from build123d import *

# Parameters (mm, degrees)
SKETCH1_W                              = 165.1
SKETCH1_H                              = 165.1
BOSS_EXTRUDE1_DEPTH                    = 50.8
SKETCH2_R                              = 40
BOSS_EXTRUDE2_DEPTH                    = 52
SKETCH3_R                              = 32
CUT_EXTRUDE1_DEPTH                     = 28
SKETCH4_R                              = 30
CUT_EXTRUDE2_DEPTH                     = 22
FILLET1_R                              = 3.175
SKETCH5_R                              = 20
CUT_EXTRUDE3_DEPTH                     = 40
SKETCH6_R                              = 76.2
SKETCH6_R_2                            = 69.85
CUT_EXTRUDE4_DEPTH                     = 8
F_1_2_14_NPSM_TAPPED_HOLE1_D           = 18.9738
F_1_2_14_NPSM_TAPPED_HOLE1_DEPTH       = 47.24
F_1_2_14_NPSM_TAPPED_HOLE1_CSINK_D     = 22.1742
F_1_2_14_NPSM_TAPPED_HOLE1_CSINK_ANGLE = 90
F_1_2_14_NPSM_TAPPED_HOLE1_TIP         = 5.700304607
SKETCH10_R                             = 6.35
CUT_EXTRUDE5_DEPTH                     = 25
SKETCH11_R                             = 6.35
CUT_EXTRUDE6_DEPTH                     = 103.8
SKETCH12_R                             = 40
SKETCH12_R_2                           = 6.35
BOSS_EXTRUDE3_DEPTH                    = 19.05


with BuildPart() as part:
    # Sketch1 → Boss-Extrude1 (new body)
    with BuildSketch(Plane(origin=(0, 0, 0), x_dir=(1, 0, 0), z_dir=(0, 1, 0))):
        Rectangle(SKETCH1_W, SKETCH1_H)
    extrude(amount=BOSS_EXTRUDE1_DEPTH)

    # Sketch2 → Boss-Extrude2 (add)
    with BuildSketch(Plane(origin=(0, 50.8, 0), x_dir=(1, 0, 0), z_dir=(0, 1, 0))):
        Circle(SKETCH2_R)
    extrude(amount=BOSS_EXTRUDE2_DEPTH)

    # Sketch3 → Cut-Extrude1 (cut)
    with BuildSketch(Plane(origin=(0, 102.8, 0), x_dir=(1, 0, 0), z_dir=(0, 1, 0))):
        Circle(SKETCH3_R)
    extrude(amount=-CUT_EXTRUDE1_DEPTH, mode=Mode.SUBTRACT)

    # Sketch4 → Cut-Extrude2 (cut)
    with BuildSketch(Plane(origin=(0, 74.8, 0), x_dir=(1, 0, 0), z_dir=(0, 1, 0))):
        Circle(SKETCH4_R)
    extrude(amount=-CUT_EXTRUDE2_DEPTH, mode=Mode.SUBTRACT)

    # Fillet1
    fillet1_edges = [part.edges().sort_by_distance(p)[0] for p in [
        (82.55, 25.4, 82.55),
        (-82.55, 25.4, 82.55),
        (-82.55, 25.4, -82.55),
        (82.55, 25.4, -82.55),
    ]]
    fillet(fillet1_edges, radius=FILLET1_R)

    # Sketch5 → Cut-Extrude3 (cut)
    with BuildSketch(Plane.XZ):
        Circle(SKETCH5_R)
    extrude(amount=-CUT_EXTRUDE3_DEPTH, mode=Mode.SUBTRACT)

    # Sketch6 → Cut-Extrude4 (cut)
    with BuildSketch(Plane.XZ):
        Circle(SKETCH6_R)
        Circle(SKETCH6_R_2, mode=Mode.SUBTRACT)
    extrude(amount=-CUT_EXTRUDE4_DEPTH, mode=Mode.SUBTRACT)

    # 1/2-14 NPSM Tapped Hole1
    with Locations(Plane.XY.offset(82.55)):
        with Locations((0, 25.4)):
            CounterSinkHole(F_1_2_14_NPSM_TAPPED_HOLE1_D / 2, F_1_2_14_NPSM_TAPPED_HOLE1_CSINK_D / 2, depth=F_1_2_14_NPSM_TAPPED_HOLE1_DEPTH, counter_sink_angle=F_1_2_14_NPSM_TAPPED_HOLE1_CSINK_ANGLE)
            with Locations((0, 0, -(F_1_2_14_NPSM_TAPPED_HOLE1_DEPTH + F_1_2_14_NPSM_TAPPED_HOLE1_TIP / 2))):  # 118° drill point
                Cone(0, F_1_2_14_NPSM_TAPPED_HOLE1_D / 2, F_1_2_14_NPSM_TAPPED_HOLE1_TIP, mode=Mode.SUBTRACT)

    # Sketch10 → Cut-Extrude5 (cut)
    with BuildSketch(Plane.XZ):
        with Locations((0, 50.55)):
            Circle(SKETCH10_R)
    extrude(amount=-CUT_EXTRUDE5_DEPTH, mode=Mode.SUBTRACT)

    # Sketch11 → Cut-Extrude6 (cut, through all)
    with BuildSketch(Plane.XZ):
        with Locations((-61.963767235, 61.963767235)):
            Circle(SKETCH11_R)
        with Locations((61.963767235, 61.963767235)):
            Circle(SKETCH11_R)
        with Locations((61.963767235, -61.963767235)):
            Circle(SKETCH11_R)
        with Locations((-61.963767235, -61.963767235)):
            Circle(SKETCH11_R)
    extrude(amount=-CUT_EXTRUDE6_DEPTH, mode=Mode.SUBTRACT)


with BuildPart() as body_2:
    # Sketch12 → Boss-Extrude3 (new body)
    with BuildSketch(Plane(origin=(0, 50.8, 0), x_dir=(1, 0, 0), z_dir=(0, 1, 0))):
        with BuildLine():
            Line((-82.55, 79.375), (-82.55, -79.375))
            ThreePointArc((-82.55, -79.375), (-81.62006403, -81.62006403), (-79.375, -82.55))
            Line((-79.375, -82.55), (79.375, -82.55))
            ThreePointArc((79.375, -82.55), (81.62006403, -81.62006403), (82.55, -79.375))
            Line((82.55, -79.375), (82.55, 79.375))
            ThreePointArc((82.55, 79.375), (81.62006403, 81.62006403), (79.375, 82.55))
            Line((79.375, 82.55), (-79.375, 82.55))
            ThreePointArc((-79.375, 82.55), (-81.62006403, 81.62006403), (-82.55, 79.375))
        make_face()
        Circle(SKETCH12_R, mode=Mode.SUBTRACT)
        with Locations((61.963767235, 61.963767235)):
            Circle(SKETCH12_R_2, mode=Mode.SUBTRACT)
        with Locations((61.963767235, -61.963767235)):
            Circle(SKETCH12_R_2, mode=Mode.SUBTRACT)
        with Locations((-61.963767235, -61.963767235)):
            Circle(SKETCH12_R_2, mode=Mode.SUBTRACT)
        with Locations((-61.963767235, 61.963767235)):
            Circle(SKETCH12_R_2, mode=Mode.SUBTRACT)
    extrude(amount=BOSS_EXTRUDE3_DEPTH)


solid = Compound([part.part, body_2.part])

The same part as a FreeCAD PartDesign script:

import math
import FreeCAD as App
import Part
import Sketcher
Q = App.Units.Quantity


def edges_at(feature, points):
    """Names of the edges that pass closest to the given points."""
    edges = feature.Shape.Edges
    near = lambda p: min(range(len(edges)), key=lambda i: edges[i].distToShape(Part.Vertex(*p))[0])
    return sorted({f"Edge{near(p) + 1}" for p in points})

doc = App.newDocument("Part")
body = doc.addObject("PartDesign::Body", "Body")

sketch1 = body.newObject("Sketcher::SketchObject", "Sketch")
sketch1.AttachmentSupport = (doc.getObject("XZ_Plane"), [""])
sketch1.MapMode = "FlatFace"
sketch1.addGeometry(Part.LineSegment(App.Vector(-82.55, -82.55, 0), App.Vector(-82.55, 82.55, 0)), False)
sketch1.addGeometry(Part.LineSegment(App.Vector(-82.55, 82.55, 0), App.Vector(82.55, 82.55, 0)), False)
sketch1.addGeometry(Part.LineSegment(App.Vector(82.55, 82.55, 0), App.Vector(82.55, -82.55, 0)), False)
sketch1.addGeometry(Part.LineSegment(App.Vector(82.55, -82.55, 0), App.Vector(-82.55, -82.55, 0)), False)
sketch1.addConstraint(Sketcher.Constraint("Coincident", 0, 2, 1, 1))
sketch1.addConstraint(Sketcher.Constraint("Coincident", 1, 2, 2, 1))
sketch1.addConstraint(Sketcher.Constraint("Coincident", 2, 2, 3, 1))
sketch1.addConstraint(Sketcher.Constraint("Coincident", 3, 2, 0, 1))
sketch1.addConstraint(Sketcher.Constraint("Vertical", 0))
sketch1.addConstraint(Sketcher.Constraint("Horizontal", 1))
sketch1.addConstraint(Sketcher.Constraint("Vertical", 2))
sketch1.addConstraint(Sketcher.Constraint("Horizontal", 3))
sketch1.addConstraint(Sketcher.Constraint("Symmetric", 0, 2, 2, 2, -1, 1))
sketch1.addConstraint(Sketcher.Constraint("Equal", 3, 0))
sketch1.addConstraint(Sketcher.Constraint("DistanceX", 1, 1, 1, 2, Q("165.1 mm")))
pad1 = body.newObject("PartDesign::Pad", "Pad")
pad1.Profile = sketch1
pad1.Length = 50.8
pad1.Reversed = True

sketch2 = body.newObject("Sketcher::SketchObject", "Sketch001")
sketch2.AttachmentSupport = (doc.getObject("XZ_Plane"), [""])
sketch2.MapMode = "FlatFace"
sketch2.AttachmentOffset = App.Placement(App.Vector(0, 0, -50.8), App.Rotation())
sketch2.addGeometry(Part.Circle(App.Vector(0, 0, 0), App.Vector(0, 0, 1), 40), False)
sketch2.addConstraint(Sketcher.Constraint("Coincident", 0, 3, -1, 1))
sketch2.addConstraint(Sketcher.Constraint("Diameter", 0, Q("80 mm")))
pad2 = body.newObject("PartDesign::Pad", "Pad001")
pad2.Profile = sketch2
pad2.Length = 52
pad2.Reversed = True

sketch3 = body.newObject("Sketcher::SketchObject", "Sketch002")
sketch3.AttachmentSupport = (doc.getObject("XZ_Plane"), [""])
sketch3.MapMode = "FlatFace"
sketch3.AttachmentOffset = App.Placement(App.Vector(0, 0, -102.8), App.Rotation())
sketch3.addGeometry(Part.Circle(App.Vector(0, 0, 0), App.Vector(0, 0, 1), 32), False)
sketch3.addConstraint(Sketcher.Constraint("Coincident", 0, 3, -1, 1))
sketch3.addConstraint(Sketcher.Constraint("Diameter", 0, Q("64 mm")))
pocket1 = body.newObject("PartDesign::Pocket", "Pocket")
pocket1.Profile = sketch3
pocket1.Length = 28
pocket1.Reversed = True

sketch4 = body.newObject("Sketcher::SketchObject", "Sketch003")
sketch4.AttachmentSupport = (doc.getObject("XZ_Plane"), [""])
sketch4.MapMode = "FlatFace"
sketch4.AttachmentOffset = App.Placement(App.Vector(0, 0, -74.8), App.Rotation())
sketch4.addGeometry(Part.Circle(App.Vector(0, 0, 0), App.Vector(0, 0, 1), 30), False)
sketch4.addConstraint(Sketcher.Constraint("Coincident", 0, 3, -1, 1))
sketch4.addConstraint(Sketcher.Constraint("Diameter", 0, Q("60 mm")))
pocket2 = body.newObject("PartDesign::Pocket", "Pocket001")
pocket2.Profile = sketch4
pocket2.Length = 22
pocket2.Reversed = True
doc.recompute()

fillet = body.newObject("PartDesign::Fillet", "Fillet")
fillet.Base = (pocket2, edges_at(pocket2, [
    (82.55, 25.4, 82.55),
    (-82.55, 25.4, 82.55),
    (-82.55, 25.4, -82.55),
    (82.55, 25.4, -82.55),
]))
fillet.Radius = 3.175

sketch5 = body.newObject("Sketcher::SketchObject", "Sketch004")
sketch5.AttachmentSupport = (doc.getObject("XZ_Plane"), [""])
sketch5.MapMode = "FlatFace"
sketch5.addGeometry(Part.Circle(App.Vector(0, 0, 0), App.Vector(0, 0, 1), 20), False)
sketch5.addConstraint(Sketcher.Constraint("Coincident", 0, 3, -1, 1))
sketch5.addConstraint(Sketcher.Constraint("Diameter", 0, Q("40 mm")))
pocket3 = body.newObject("PartDesign::Pocket", "Pocket002")
pocket3.Profile = sketch5
pocket3.Length = 40

sketch6 = body.newObject("Sketcher::SketchObject", "Sketch005")
sketch6.AttachmentSupport = (doc.getObject("XZ_Plane"), [""])
sketch6.MapMode = "FlatFace"
sketch6.addGeometry(Part.Circle(App.Vector(0, 0, 0), App.Vector(0, 0, 1), 76.2), False)
sketch6.addGeometry(Part.Circle(App.Vector(0, 0, 0), App.Vector(0, 0, 1), 69.85), False)
sketch6.addConstraint(Sketcher.Constraint("Coincident", 0, 3, -1, 1))
sketch6.addConstraint(Sketcher.Constraint("Coincident", 1, 3, -1, 1))
sketch6.addConstraint(Sketcher.Constraint("Diameter", 0, Q("152.4 mm")))
sketch6.addConstraint(Sketcher.Constraint("Diameter", 1, Q("139.7 mm")))
pocket4 = body.newObject("PartDesign::Pocket", "Pocket003")
pocket4.Profile = sketch6
pocket4.Length = 8

sketch7 = body.newObject("Sketcher::SketchObject", "Sketch006")
sketch7.AttachmentSupport = (doc.getObject("XY_Plane"), [""])
sketch7.MapMode = "FlatFace"
sketch7.AttachmentOffset = App.Placement(App.Vector(0, 0, 82.55), App.Rotation())
sketch7.addGeometry(Part.Circle(App.Vector(0, 25.4, 0), App.Vector(0, 0, 1), 9.4869), False)
sketch7.addConstraint(Sketcher.Constraint("PointOnObject", 0, 3, -2))
sketch7.addConstraint(Sketcher.Constraint("Diameter", 0, Q("18.9738 mm")))
sketch7.addConstraint(Sketcher.Constraint("DistanceY", -1, 1, 0, 3, Q("25.4 mm")))
doc.recompute()
hole = body.newObject("PartDesign::Hole", "Hole")
hole.Profile = sketch7
hole.ThreadType = "None"
hole.Diameter = 18.9738
hole.DepthType = "Dimension"
hole.Depth = 47.24
hole.DrillPoint = "Angled"
hole.DrillPointAngle = 118
hole.HoleCutType = "Countersink"
hole.HoleCutDiameter = 22.1742
hole.HoleCutCountersinkAngle = 90

sketch8 = body.newObject("Sketcher::SketchObject", "Sketch007")
sketch8.AttachmentSupport = (doc.getObject("XZ_Plane"), [""])
sketch8.MapMode = "FlatFace"
sketch8.addGeometry(Part.Circle(App.Vector(0, 50.55, 0), App.Vector(0, 0, 1), 6.35), False)
sketch8.addConstraint(Sketcher.Constraint("PointOnObject", 0, 3, -2))
sketch8.addConstraint(Sketcher.Constraint("Diameter", 0, Q("12.7 mm")))
sketch8.addConstraint(Sketcher.Constraint("DistanceY", -1, 1, 0, 3, Q("50.55 mm")))
pocket5 = body.newObject("PartDesign::Pocket", "Pocket004")
pocket5.Profile = sketch8
pocket5.Length = 25

sketch9 = body.newObject("Sketcher::SketchObject", "Sketch008")
sketch9.AttachmentSupport = (doc.getObject("XZ_Plane"), [""])
sketch9.MapMode = "FlatFace"
sketch9.addGeometry(Part.Circle(App.Vector(-61.963767, 61.963767, 0), App.Vector(0, 0, 1), 6.35), False)
sketch9.addGeometry(Part.Circle(App.Vector(61.963767, 61.963767, 0), App.Vector(0, 0, 1), 6.35), False)
sketch9.addGeometry(Part.Circle(App.Vector(61.963767, -61.963767, 0), App.Vector(0, 0, 1), 6.35), False)
sketch9.addGeometry(Part.Circle(App.Vector(-61.963767, -61.963767, 0), App.Vector(0, 0, 1), 6.35), False)
sketch9.addConstraint(Sketcher.Constraint("Equal", 0, 1))
sketch9.addConstraint(Sketcher.Constraint("Equal", 1, 2))
sketch9.addConstraint(Sketcher.Constraint("Equal", 2, 3))
sketch9.addConstraint(Sketcher.Constraint("Symmetric", 0, 3, 2, 3, -1, 1))
sketch9.addConstraint(Sketcher.Constraint("Symmetric", 1, 3, 3, 3, -1, 1))
sketch9.addConstraint(Sketcher.Constraint("Symmetric", 0, 3, 1, 3, -2))
sketch9.addConstraint(Sketcher.Constraint("Diameter", 0, Q("12.7 mm")))
sketch9.addConstraint(Sketcher.Constraint("DistanceX", 0, 3, -1, 1, Q("61.963767 mm")))
sketch9.addConstraint(Sketcher.Constraint("DistanceY", -1, 1, 0, 3, Q("61.963767 mm")))
pocket6 = body.newObject("PartDesign::Pocket", "Pocket005")
pocket6.Profile = sketch9
pocket6.Type = "ThroughAll"
body2 = doc.addObject("PartDesign::Body", "Body001")

sketch10 = body2.newObject("Sketcher::SketchObject", "Sketch009")
sketch10.AttachmentSupport = (doc.getObject("XZ_Plane001"), [""])
sketch10.MapMode = "FlatFace"
sketch10.AttachmentOffset = App.Placement(App.Vector(0, 0, -50.8), App.Rotation())
sketch10.addGeometry(Part.LineSegment(App.Vector(-82.55, -79.375, 0), App.Vector(-82.55, 79.375, 0)), False)
sketch10.addGeometry(Part.ArcOfCircle(Part.Circle(App.Vector(-79.375, 79.375, 0), App.Vector(0, 0, 1), 3.175), math.radians(90), math.radians(180)), False)
sketch10.addGeometry(Part.LineSegment(App.Vector(-79.375, 82.55, 0), App.Vector(79.375, 82.55, 0)), False)
sketch10.addGeometry(Part.ArcOfCircle(Part.Circle(App.Vector(79.375, 79.375, 0), App.Vector(0, 0, 1), 3.175), math.radians(0), math.radians(90)), False)
sketch10.addGeometry(Part.LineSegment(App.Vector(82.55, 79.375, 0), App.Vector(82.55, -79.375, 0)), False)
sketch10.addGeometry(Part.ArcOfCircle(Part.Circle(App.Vector(79.375, -79.375, 0), App.Vector(0, 0, 1), 3.175), math.radians(-90), math.radians(0)), False)
sketch10.addGeometry(Part.LineSegment(App.Vector(79.375, -82.55, 0), App.Vector(-79.375, -82.55, 0)), False)
sketch10.addGeometry(Part.ArcOfCircle(Part.Circle(App.Vector(-79.375, -79.375, 0), App.Vector(0, 0, 1), 3.175), math.radians(-180), math.radians(-90)), False)
sketch10.addGeometry(Part.Circle(App.Vector(-61.963767, 61.963767, 0), App.Vector(0, 0, 1), 6.35), False)
sketch10.addGeometry(Part.Circle(App.Vector(61.963767, 61.963767, 0), App.Vector(0, 0, 1), 6.35), False)
sketch10.addGeometry(Part.Circle(App.Vector(-61.963767, -61.963767, 0), App.Vector(0, 0, 1), 6.35), False)
sketch10.addGeometry(Part.Circle(App.Vector(0, 0, 0), App.Vector(0, 0, 1), 40), False)
sketch10.addGeometry(Part.Circle(App.Vector(61.963767, -61.963767, 0), App.Vector(0, 0, 1), 6.35), False)
sketch10.addConstraint(Sketcher.Constraint("Tangent", 0, 2, 1, 2))
sketch10.addConstraint(Sketcher.Constraint("Tangent", 1, 1, 2, 1))
sketch10.addConstraint(Sketcher.Constraint("Tangent", 2, 2, 3, 2))
sketch10.addConstraint(Sketcher.Constraint("Tangent", 3, 1, 4, 1))
sketch10.addConstraint(Sketcher.Constraint("Tangent", 4, 2, 5, 2))
sketch10.addConstraint(Sketcher.Constraint("Tangent", 5, 1, 6, 1))
sketch10.addConstraint(Sketcher.Constraint("Tangent", 6, 2, 7, 2))
sketch10.addConstraint(Sketcher.Constraint("Tangent", 7, 1, 0, 1))
sketch10.addConstraint(Sketcher.Constraint("Vertical", 0))
sketch10.addConstraint(Sketcher.Constraint("Horizontal", 2))
sketch10.addConstraint(Sketcher.Constraint("Vertical", 4))
sketch10.addConstraint(Sketcher.Constraint("Horizontal", 6))
sketch10.addConstraint(Sketcher.Constraint("Coincident", 11, 3, -1, 1))
sketch10.addConstraint(Sketcher.Constraint("Equal", 1, 3))
sketch10.addConstraint(Sketcher.Constraint("Equal", 3, 5))
sketch10.addConstraint(Sketcher.Constraint("Equal", 5, 7))
sketch10.addConstraint(Sketcher.Constraint("Equal", 8, 9))
sketch10.addConstraint(Sketcher.Constraint("Equal", 9, 10))
sketch10.addConstraint(Sketcher.Constraint("Equal", 10, 12))
sketch10.addConstraint(Sketcher.Constraint("Symmetric", 1, 3, 5, 3, -1, 1))
sketch10.addConstraint(Sketcher.Constraint("Symmetric", 9, 3, 10, 3, -1, 1))
sketch10.addConstraint(Sketcher.Constraint("Symmetric", 8, 3, 12, 3, -1, 1))
sketch10.addConstraint(Sketcher.Constraint("Symmetric", 8, 3, 9, 3, -2))
sketch10.addConstraint(Sketcher.Constraint("Equal", 6, 0))
sketch10.addConstraint(Sketcher.Constraint("Diameter", 11, Q("80 mm")))
sketch10.addConstraint(Sketcher.Constraint("Diameter", 8, Q("12.7 mm")))
sketch10.addConstraint(Sketcher.Constraint("Radius", 1, Q("3.175 mm")))
sketch10.addConstraint(Sketcher.Constraint("DistanceX", 2, 1, 2, 2, Q("158.75 mm")))
sketch10.addConstraint(Sketcher.Constraint("DistanceX", 8, 3, -1, 1, Q("61.963767 mm")))
sketch10.addConstraint(Sketcher.Constraint("DistanceY", -1, 1, 8, 3, Q("61.963767 mm")))
pad3 = body2.newObject("PartDesign::Pad", "Pad002")
pad3.Profile = sketch10
pad3.Length = 19.05
pad3.Reversed = True

doc.recompute()
